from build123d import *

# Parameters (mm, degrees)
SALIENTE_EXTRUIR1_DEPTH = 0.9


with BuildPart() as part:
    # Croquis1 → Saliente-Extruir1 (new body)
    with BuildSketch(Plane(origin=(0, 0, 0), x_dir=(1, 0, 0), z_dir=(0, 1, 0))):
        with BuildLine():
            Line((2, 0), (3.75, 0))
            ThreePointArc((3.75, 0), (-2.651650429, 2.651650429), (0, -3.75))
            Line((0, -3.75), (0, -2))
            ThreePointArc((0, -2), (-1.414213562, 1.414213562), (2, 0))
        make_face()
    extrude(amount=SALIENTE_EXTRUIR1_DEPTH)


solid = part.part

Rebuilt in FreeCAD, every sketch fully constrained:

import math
import FreeCAD as App
import Part
import Sketcher

V = App.Vector

doc = App.newDocument("Part")
body = doc.addObject("PartDesign::Body", "Body")

# Sketch on XZ plane
sketch1 = body.newObject("Sketcher::SketchObject", "Sketch")
sketch1.AttachmentSupport = (doc.getObject("XZ_Plane"), [""])
sketch1.MapMode = "FlatFace"
sketch1.addGeometry(Part.LineSegment(V(2, 0, 0), V(3.8, 0, 0)), False)
sketch1.addGeometry(Part.ArcOfCircle(Part.Circle(V(0, 0, 0), V(0, 0, 1), 3.8), math.radians(90), math.radians(360)), False)
sketch1.addGeometry(Part.LineSegment(V(0, 3.8, 0), V(0, 2, 0)), False)
sketch1.addGeometry(Part.ArcOfCircle(Part.Circle(V(0, 0, 0), V(0, 0, 1), 2), math.radians(90), math.radians(360)), False)
sketch1.addConstraint(Sketcher.Constraint("Coincident", 0, 2, 1, 2))
sketch1.addConstraint(Sketcher.Constraint("Coincident", 1, 1, 2, 1))
sketch1.addConstraint(Sketcher.Constraint("Coincident", 2, 2, 3, 1))
sketch1.addConstraint(Sketcher.Constraint("Coincident", 3, 2, 0, 1))
sketch1.addConstraint(Sketcher.Constraint("Horizontal", 0))
sketch1.addConstraint(Sketcher.Constraint("Vertical", 2))
sketch1.addConstraint(Sketcher.Constraint("Coincident", 1, 3, -1, 1))
sketch1.addConstraint(Sketcher.Constraint("Coincident", 3, 3, -1, 1))
sketch1.addConstraint(Sketcher.Constraint("PointOnObject", 0, 2, -1))
sketch1.addConstraint(Sketcher.Constraint("PointOnObject", 1, 1, -2))
sketch1.addConstraint(Sketcher.Constraint("Radius", 3, 2.0))
sketch1.addConstraint(Sketcher.Constraint("Radius", 1, 3.75))
pad1 = body.newObject("PartDesign::Pad", "Pad")
pad1.Profile = sketch1
pad1.Length = 0.9
pad1.Reversed = True

doc.recompute()
